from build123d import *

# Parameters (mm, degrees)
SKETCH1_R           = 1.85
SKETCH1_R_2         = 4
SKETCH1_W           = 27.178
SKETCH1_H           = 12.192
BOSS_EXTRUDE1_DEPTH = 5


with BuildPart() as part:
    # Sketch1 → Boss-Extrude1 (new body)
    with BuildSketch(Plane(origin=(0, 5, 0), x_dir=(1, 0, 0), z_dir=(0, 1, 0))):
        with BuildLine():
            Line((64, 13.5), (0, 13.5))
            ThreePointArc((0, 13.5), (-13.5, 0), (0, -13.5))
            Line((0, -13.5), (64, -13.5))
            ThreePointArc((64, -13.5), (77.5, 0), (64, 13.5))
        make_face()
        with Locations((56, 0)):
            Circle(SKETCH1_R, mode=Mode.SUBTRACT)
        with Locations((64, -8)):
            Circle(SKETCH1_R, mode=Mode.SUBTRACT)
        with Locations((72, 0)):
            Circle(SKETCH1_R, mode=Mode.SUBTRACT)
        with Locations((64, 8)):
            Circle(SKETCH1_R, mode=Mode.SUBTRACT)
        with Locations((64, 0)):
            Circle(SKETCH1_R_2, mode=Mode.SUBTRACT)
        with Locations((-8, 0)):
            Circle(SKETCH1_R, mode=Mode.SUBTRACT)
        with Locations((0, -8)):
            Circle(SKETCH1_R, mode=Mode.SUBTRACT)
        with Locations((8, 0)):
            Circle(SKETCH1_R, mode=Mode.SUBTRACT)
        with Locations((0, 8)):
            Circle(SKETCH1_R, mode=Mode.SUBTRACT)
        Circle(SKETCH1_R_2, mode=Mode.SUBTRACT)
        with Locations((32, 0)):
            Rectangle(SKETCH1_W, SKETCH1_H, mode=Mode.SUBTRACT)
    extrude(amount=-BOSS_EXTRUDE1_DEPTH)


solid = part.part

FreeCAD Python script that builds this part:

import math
import FreeCAD as App
import Part
import Sketcher
from FreeCAD import Vector


def add_polygon(sketch, points):
    """Adds a closed chain of lines whose ends are joined by coincident constraints."""
    first, n = sketch.GeometryCount, len(points)
    for a, b in zip(points, points[1:] + points[:1]):
        sketch.addGeometry(Part.LineSegment(App.Vector(*a, 0), App.Vector(*b, 0)), False)
    for i in range(n):
        sketch.addConstraint(Sketcher.Constraint("Coincident", first + i, 2, first + (i + 1) % n, 1))

doc = App.newDocument("Part")
params = doc.addObject("Spreadsheet::Sheet", "Params")
for row, (alias, value) in enumerate([
    ("sketch1_diameter", "8 mm"),
    ("sketch1_diameter2", "3.7 mm"),
    ("sketch1_radius", "13.5 mm"),
    ("sketch1_width", "64 mm"),
    ("pad1_length", "5 mm"),
], start=1):
    params.set(f"A{row}", alias)
    params.set(f"B{row}", "=" + value)
    params.setAlias(f"B{row}", alias)

body = doc.addObject("PartDesign::Body", "Body")

# Sketch on XZ plane
sketch1 = body.newObject("Sketcher::SketchObject", "Sketch")
sketch1.AttachmentSupport = (doc.getObject("XZ_Plane"), [""])
sketch1.MapMode = "FlatFace"
sketch1.AttachmentOffset = App.Placement(Vector(0, 0, -5), App.Rotation())
sketch1.addGeometry(Part.LineSegment(Vector(64, -13.5, 0), Vector(0, -13.5, 0)), False)  # 0
sketch1.addGeometry(Part.ArcOfCircle(Part.Circle(Vector(0, 0, 0), Vector(0, 0, 1), 13.5), math.radians(90), math.radians(270)), False)  # 1
sketch1.addGeometry(Part.LineSegment(Vector(0, 13.5, 0), Vector(64, 13.5, 0)), False)  # 2
sketch1.addGeometry(Part.ArcOfCircle(Part.Circle(Vector(64, 0, 0), Vector(0, 0, 1), 13.5), math.radians(-90), math.radians(90)), False)  # 3
sketch1.addGeometry(Part.Circle(Vector(0, 8, 0), Vector(0, 0, 1), 1.9), False)  # 4
sketch1.addGeometry(Part.Circle(Vector(64, 8, 0), Vector(0, 0, 1), 1.9), False)  # 5
sketch1.addGeometry(Part.Circle(Vector(-8, 0, 0), Vector(0, 0, 1), 1.9), False)  # 6
sketch1.addGeometry(Part.Circle(Vector(0, 0, 0), Vector(0, 0, 1), 4), False)  # 7
sketch1.addGeometry(Part.Circle(Vector(8, 0, 0), Vector(0, 0, 1), 1.9), False)  # 8
sketch1.addGeometry(Part.Circle(Vector(0, -8, 0), Vector(0, 0, 1), 1.9), False)  # 9
add_polygon(sketch1, [(45.6, 6.1), (18.4, 6.1), (18.4, -6.1), (45.6, -6.1)])  # lines 10-13
sketch1.addGeometry(Part.Circle(Vector(56, 0, 0), Vector(0, 0, 1), 1.9), False)  # 14
sketch1.addGeometry(Part.Circle(Vector(64, 0, 0), Vector(0, 0, 1), 4), False)  # 15
sketch1.addGeometry(Part.Circle(Vector(72, 0, 0), Vector(0, 0, 1), 1.9), False)  # 16
sketch1.addGeometry(Part.Circle(Vector(64, -8, 0), Vector(0, 0, 1), 1.9), False)  # 17
sketch1.addConstraint([
    Sketcher.Constraint("Tangent", 0, 2, 1, 2),
    Sketcher.Constraint("Tangent", 1, 1, 2, 1),
    Sketcher.Constraint("Tangent", 2, 2, 3, 2),
    Sketcher.Constraint("Tangent", 3, 1, 0, 1),
    Sketcher.Constraint("Horizontal", 0),
    Sketcher.Constraint("Horizontal", 2),
    Sketcher.Constraint("Horizontal", 10),
    Sketcher.Constraint("Vertical", 11),
    Sketcher.Constraint("Horizontal", 12),
    Sketcher.Constraint("Vertical", 13),
    Sketcher.Constraint("Coincident", 1, 3, -1, 1),
    Sketcher.Constraint("Coincident", 7, 3, -1, 1),
    Sketcher.Constraint("Coincident", 15, 3, 3, 3),
    Sketcher.Constraint("Equal", 4, 5),
    Sketcher.Constraint("Equal", 5, 6),
    Sketcher.Constraint("Equal", 6, 8),
    Sketcher.Constraint("Equal", 8, 9),
    Sketcher.Constraint("Equal", 9, 14),
    Sketcher.Constraint("Equal", 7, 15),
    Sketcher.Constraint("Equal", 14, 16),
    Sketcher.Constraint("Equal", 16, 17),
    Sketcher.Constraint("Symmetric", 6, 3, 8, 3, -1, 1),
    Sketcher.Constraint("Symmetric", 4, 3, 9, 3, -1, 1),
    Sketcher.Constraint("Symmetric", 5, 3, 17, 3, -1),
    Sketcher.Constraint("PointOnObject", 4, 3, -2),
    Sketcher.Constraint("PointOnObject", 6, 3, -1),
    Sketcher.Constraint("PointOnObject", 14, 3, -1),
    Sketcher.Constraint("PointOnObject", 16, 3, -1),
    Sketcher.Constraint("Horizontal", 4, 3, 5, 3),
    Sketcher.Constraint("Vertical", 3, 3, 5, 3),
    Sketcher.Constraint("Diameter", 7, 8.0),
    Sketcher.Constraint("Diameter", 4, 3.7),
    Sketcher.Constraint("Radius", 1, 13.5),
    Sketcher.Constraint("DistanceX", 0, 2, 0, 1, 64.0),
    Sketcher.Constraint("DistanceY", -1, 1, 4, 3, 8.0),
    Sketcher.Constraint("DistanceX", 6, 3, -1, 1, 8.0),
    Sketcher.Constraint("DistanceX", -1, 1, 14, 3, 56.0),
    Sketcher.Constraint("DistanceX", -1, 1, 16, 3, 72.0),
    Sketcher.Constraint("DistanceX", 10, 2, 10, 1, 27.178),
    Sketcher.Constraint("DistanceY", 11, 2, 11, 1, 12.192),
    Sketcher.Constraint("DistanceX", -1, 1, 10, 2, 18.411),
    Sketcher.Constraint("DistanceY", -1, 1, 10, 2, 6.096),
])
sketch1.setExpression("Constraints[34]", "Params.sketch1_diameter")
sketch1.setExpression("Constraints[35]", "Params.sketch1_diameter2")
sketch1.setExpression("Constraints[36]", "Params.sketch1_radius")
sketch1.setExpression("Constraints[37]", "Params.sketch1_width")
pad1 = body.newObject("PartDesign::Pad", "Pad")
pad1.Profile = sketch1
pad1.setExpression("Length", "Params.pad1_length")

doc.recompute()
